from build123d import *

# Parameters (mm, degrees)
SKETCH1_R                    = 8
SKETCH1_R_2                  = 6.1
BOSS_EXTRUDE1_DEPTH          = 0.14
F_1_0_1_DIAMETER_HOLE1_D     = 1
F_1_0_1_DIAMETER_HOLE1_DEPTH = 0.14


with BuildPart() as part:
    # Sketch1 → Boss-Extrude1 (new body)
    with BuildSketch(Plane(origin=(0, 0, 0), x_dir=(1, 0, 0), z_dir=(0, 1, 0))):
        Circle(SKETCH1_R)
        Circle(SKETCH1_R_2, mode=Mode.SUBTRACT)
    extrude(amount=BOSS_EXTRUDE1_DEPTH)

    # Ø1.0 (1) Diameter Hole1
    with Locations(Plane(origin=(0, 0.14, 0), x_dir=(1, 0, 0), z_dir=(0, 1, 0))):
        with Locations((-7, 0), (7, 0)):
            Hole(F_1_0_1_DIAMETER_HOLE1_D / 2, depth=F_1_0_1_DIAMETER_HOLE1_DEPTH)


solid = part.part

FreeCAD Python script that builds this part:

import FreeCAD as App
import Part
import Sketcher

V = App.Vector
Q = App.Units.Quantity

doc = App.newDocument("Part")
body = doc.addObject("PartDesign::Body", "Body")

sketch1 = body.newObject("Sketcher::SketchObject", "Sketch")
sketch1.AttachmentSupport = (doc.getObject("XZ_Plane"), [""])
sketch1.MapMode = "FlatFace"
sketch1.addGeometry([
    Part.Circle(V(0, 0, 0), V(0, 0, 1), 8),
    Part.Circle(V(0, 0, 0), V(0, 0, 1), 6.1),
], False)
sketch1.addConstraint([
    Sketcher.Constraint("Coincident", 0, 3, -1, 1),
    Sketcher.Constraint("Coincident", 1, 3, -1, 1),
    Sketcher.Constraint("Diameter", 0, Q("16 mm")),
    Sketcher.Constraint("Diameter", 1, Q("12.2 mm")),
])
pad1 = body.newObject("PartDesign::Pad", "Pad")
pad1.Profile = sketch1
pad1.Length = 0.14
pad1.Reversed = True

sketch2 = body.newObject("Sketcher::SketchObject", "Sketch001")
sketch2.AttachmentSupport = (doc.getObject("XZ_Plane"), [""])
sketch2.MapMode = "FlatFace"
sketch2.AttachmentOffset = App.Placement(V(0, 0, -0.14), App.Rotation())
sketch2.addGeometry([
    Part.Circle(V(-7, 0, 0), V(0, 0, 1), 0.5),
    Part.Circle(V(7, 0, 0), V(0, 0, 1), 0.5),
], False)
sketch2.addConstraint([
    Sketcher.Constraint("Equal", 0, 1),
    Sketcher.Constraint("Symmetric", 0, 3, 1, 3, -1, 1),
    Sketcher.Constraint("PointOnObject", 0, 3, -1),
    Sketcher.Constraint("Diameter", 0, Q("1 mm")),
    Sketcher.Constraint("DistanceX", 0, 3, -1, 1, Q("7 mm")),
])
doc.recompute()
hole = body.newObject("PartDesign::Hole", "Hole")
hole.Profile = sketch2
hole.ThreadType = "None"
hole.Diameter = 1
hole.DepthType = "Dimension"
hole.Depth = 0.14
hole.DrillPoint = "Flat"
hole.Reversed = True

doc.recompute()
